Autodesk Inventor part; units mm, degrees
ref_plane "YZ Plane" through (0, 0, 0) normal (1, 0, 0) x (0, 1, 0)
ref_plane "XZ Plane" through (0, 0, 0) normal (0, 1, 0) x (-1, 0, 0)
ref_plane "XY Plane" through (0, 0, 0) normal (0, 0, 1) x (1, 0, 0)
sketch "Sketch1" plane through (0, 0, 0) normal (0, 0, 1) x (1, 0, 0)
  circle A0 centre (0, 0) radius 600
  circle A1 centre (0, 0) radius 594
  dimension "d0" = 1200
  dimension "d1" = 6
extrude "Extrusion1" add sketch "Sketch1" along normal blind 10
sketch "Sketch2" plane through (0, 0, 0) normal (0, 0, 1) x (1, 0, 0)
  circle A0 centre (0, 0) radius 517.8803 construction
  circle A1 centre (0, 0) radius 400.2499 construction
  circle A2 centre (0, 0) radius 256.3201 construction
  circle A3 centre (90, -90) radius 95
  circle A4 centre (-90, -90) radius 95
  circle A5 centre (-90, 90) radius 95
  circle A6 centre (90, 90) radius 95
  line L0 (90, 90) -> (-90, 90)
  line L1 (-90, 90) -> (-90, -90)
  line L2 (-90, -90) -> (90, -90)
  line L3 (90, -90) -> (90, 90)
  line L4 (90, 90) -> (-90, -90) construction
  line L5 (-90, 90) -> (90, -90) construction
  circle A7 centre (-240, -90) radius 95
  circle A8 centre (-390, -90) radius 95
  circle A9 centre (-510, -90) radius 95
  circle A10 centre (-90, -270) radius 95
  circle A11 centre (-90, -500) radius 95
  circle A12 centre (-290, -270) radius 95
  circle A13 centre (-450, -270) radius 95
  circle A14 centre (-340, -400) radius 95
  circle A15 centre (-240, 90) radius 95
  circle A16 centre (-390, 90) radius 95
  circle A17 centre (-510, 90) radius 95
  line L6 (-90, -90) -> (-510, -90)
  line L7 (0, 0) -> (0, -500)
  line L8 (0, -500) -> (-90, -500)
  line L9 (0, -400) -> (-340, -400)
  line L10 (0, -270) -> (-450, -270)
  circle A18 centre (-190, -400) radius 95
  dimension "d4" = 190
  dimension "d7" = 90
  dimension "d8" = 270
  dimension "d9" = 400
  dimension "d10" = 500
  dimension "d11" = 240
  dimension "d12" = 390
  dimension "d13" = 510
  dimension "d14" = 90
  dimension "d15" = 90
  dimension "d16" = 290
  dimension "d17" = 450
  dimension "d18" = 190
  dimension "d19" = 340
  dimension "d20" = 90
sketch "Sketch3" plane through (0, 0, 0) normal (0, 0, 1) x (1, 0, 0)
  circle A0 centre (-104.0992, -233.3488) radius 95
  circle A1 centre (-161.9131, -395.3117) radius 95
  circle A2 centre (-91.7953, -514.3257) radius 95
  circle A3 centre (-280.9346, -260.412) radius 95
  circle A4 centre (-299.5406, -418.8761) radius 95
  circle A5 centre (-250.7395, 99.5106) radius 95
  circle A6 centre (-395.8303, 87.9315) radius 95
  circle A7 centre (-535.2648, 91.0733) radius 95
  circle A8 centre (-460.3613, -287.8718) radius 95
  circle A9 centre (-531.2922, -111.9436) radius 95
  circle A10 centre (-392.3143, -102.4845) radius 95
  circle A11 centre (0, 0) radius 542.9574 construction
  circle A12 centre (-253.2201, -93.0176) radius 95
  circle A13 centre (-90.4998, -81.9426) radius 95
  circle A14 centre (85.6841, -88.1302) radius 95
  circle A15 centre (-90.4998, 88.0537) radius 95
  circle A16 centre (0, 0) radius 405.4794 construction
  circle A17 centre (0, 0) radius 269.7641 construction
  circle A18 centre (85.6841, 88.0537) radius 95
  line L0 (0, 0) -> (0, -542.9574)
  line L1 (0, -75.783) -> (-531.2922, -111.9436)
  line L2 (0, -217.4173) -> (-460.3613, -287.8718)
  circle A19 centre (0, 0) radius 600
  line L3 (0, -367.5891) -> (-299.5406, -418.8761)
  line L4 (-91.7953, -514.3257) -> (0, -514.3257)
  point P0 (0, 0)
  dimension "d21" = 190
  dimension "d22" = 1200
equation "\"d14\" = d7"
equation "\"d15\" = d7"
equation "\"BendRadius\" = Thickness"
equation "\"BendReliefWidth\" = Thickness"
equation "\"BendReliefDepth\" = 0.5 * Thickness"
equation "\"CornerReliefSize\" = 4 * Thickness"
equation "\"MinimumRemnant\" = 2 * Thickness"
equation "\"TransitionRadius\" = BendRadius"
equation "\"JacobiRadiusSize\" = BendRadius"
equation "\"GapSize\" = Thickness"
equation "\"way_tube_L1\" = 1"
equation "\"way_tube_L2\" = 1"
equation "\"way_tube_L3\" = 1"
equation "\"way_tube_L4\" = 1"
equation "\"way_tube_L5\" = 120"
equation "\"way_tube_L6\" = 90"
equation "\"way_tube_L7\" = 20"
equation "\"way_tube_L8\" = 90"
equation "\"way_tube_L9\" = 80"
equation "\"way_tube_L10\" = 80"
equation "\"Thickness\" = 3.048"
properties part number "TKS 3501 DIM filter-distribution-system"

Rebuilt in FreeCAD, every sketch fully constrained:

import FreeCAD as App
import Part
import Sketcher
Q = App.Units.Quantity

doc = App.newDocument("Part")
body = doc.addObject("PartDesign::Body", "Body")

# Sketch on XY plane
sketch1 = body.newObject("Sketcher::SketchObject", "Sketch")
sketch1.AttachmentSupport = (doc.getObject("XY_Plane"), [""])
sketch1.MapMode = "FlatFace"
sketch1.addGeometry([
    Part.Circle(App.Vector(0, 0, 0), App.Vector(0, 0, 1), 600),
    Part.Circle(App.Vector(0, 0, 0), App.Vector(0, 0, 1), 594),
], False)
sketch1.addConstraint([
    Sketcher.Constraint("Coincident", 0, 3, -1, 1),
    Sketcher.Constraint("Coincident", 1, 3, -1, 1),
    Sketcher.Constraint("Diameter", 0, Q("1200 mm")),
    Sketcher.Constraint("Diameter", 1, Q("1188 mm")),
])
pad1 = body.newObject("PartDesign::Pad", "Pad")
pad1.Profile = sketch1
pad1.Length = 10

doc.recompute()
